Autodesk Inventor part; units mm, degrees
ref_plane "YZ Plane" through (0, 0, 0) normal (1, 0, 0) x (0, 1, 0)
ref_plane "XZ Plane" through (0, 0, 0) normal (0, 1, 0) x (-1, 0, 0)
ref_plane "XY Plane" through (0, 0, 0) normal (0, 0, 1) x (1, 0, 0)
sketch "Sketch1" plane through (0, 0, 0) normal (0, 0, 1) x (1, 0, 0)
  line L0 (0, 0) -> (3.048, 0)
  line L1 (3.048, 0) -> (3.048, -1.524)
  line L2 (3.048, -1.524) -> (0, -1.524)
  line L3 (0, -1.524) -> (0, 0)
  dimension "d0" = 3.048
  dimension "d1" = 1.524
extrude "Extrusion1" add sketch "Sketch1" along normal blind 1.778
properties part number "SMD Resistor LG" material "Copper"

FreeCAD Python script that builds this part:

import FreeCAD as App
import Part
import Sketcher
Q = App.Units.Quantity


def add_polygon(sketch, points):
    """Adds a closed chain of lines whose ends are joined by coincident constraints."""
    first, n = sketch.GeometryCount, len(points)
    for a, b in zip(points, points[1:] + points[:1]):
        sketch.addGeometry(Part.LineSegment(App.Vector(*a, 0), App.Vector(*b, 0)), False)
    for i in range(n):
        sketch.addConstraint(Sketcher.Constraint("Coincident", first + i, 2, first + (i + 1) % n, 1))

doc = App.newDocument("Part")
body = doc.addObject("PartDesign::Body", "Body")

# Sketch on XY plane
sketch1 = body.newObject("Sketcher::SketchObject", "Sketch")
sketch1.AttachmentSupport = (doc.getObject("XY_Plane"), [""])
sketch1.MapMode = "FlatFace"
add_polygon(sketch1, [(3, 0), (0, 0), (0, -1.5), (3, -1.5)])  # lines 0-3
sketch1.addConstraint([
    Sketcher.Constraint("Horizontal", 0),
    Sketcher.Constraint("Vertical", 1),
    Sketcher.Constraint("Horizontal", 2),
    Sketcher.Constraint("Vertical", 3),
    Sketcher.Constraint("Coincident", 0, 2, -1, 1),
    Sketcher.Constraint("DistanceX", 0, 2, 0, 1, Q("0.12 in")),
    Sketcher.Constraint("DistanceY", 1, 2, 1, 1, Q("0.06 in")),
])
pad1 = body.newObject("PartDesign::Pad", "Pad")
pad1.Profile = sketch1
pad1.Length = Q("0.07 in")

doc.recompute()
